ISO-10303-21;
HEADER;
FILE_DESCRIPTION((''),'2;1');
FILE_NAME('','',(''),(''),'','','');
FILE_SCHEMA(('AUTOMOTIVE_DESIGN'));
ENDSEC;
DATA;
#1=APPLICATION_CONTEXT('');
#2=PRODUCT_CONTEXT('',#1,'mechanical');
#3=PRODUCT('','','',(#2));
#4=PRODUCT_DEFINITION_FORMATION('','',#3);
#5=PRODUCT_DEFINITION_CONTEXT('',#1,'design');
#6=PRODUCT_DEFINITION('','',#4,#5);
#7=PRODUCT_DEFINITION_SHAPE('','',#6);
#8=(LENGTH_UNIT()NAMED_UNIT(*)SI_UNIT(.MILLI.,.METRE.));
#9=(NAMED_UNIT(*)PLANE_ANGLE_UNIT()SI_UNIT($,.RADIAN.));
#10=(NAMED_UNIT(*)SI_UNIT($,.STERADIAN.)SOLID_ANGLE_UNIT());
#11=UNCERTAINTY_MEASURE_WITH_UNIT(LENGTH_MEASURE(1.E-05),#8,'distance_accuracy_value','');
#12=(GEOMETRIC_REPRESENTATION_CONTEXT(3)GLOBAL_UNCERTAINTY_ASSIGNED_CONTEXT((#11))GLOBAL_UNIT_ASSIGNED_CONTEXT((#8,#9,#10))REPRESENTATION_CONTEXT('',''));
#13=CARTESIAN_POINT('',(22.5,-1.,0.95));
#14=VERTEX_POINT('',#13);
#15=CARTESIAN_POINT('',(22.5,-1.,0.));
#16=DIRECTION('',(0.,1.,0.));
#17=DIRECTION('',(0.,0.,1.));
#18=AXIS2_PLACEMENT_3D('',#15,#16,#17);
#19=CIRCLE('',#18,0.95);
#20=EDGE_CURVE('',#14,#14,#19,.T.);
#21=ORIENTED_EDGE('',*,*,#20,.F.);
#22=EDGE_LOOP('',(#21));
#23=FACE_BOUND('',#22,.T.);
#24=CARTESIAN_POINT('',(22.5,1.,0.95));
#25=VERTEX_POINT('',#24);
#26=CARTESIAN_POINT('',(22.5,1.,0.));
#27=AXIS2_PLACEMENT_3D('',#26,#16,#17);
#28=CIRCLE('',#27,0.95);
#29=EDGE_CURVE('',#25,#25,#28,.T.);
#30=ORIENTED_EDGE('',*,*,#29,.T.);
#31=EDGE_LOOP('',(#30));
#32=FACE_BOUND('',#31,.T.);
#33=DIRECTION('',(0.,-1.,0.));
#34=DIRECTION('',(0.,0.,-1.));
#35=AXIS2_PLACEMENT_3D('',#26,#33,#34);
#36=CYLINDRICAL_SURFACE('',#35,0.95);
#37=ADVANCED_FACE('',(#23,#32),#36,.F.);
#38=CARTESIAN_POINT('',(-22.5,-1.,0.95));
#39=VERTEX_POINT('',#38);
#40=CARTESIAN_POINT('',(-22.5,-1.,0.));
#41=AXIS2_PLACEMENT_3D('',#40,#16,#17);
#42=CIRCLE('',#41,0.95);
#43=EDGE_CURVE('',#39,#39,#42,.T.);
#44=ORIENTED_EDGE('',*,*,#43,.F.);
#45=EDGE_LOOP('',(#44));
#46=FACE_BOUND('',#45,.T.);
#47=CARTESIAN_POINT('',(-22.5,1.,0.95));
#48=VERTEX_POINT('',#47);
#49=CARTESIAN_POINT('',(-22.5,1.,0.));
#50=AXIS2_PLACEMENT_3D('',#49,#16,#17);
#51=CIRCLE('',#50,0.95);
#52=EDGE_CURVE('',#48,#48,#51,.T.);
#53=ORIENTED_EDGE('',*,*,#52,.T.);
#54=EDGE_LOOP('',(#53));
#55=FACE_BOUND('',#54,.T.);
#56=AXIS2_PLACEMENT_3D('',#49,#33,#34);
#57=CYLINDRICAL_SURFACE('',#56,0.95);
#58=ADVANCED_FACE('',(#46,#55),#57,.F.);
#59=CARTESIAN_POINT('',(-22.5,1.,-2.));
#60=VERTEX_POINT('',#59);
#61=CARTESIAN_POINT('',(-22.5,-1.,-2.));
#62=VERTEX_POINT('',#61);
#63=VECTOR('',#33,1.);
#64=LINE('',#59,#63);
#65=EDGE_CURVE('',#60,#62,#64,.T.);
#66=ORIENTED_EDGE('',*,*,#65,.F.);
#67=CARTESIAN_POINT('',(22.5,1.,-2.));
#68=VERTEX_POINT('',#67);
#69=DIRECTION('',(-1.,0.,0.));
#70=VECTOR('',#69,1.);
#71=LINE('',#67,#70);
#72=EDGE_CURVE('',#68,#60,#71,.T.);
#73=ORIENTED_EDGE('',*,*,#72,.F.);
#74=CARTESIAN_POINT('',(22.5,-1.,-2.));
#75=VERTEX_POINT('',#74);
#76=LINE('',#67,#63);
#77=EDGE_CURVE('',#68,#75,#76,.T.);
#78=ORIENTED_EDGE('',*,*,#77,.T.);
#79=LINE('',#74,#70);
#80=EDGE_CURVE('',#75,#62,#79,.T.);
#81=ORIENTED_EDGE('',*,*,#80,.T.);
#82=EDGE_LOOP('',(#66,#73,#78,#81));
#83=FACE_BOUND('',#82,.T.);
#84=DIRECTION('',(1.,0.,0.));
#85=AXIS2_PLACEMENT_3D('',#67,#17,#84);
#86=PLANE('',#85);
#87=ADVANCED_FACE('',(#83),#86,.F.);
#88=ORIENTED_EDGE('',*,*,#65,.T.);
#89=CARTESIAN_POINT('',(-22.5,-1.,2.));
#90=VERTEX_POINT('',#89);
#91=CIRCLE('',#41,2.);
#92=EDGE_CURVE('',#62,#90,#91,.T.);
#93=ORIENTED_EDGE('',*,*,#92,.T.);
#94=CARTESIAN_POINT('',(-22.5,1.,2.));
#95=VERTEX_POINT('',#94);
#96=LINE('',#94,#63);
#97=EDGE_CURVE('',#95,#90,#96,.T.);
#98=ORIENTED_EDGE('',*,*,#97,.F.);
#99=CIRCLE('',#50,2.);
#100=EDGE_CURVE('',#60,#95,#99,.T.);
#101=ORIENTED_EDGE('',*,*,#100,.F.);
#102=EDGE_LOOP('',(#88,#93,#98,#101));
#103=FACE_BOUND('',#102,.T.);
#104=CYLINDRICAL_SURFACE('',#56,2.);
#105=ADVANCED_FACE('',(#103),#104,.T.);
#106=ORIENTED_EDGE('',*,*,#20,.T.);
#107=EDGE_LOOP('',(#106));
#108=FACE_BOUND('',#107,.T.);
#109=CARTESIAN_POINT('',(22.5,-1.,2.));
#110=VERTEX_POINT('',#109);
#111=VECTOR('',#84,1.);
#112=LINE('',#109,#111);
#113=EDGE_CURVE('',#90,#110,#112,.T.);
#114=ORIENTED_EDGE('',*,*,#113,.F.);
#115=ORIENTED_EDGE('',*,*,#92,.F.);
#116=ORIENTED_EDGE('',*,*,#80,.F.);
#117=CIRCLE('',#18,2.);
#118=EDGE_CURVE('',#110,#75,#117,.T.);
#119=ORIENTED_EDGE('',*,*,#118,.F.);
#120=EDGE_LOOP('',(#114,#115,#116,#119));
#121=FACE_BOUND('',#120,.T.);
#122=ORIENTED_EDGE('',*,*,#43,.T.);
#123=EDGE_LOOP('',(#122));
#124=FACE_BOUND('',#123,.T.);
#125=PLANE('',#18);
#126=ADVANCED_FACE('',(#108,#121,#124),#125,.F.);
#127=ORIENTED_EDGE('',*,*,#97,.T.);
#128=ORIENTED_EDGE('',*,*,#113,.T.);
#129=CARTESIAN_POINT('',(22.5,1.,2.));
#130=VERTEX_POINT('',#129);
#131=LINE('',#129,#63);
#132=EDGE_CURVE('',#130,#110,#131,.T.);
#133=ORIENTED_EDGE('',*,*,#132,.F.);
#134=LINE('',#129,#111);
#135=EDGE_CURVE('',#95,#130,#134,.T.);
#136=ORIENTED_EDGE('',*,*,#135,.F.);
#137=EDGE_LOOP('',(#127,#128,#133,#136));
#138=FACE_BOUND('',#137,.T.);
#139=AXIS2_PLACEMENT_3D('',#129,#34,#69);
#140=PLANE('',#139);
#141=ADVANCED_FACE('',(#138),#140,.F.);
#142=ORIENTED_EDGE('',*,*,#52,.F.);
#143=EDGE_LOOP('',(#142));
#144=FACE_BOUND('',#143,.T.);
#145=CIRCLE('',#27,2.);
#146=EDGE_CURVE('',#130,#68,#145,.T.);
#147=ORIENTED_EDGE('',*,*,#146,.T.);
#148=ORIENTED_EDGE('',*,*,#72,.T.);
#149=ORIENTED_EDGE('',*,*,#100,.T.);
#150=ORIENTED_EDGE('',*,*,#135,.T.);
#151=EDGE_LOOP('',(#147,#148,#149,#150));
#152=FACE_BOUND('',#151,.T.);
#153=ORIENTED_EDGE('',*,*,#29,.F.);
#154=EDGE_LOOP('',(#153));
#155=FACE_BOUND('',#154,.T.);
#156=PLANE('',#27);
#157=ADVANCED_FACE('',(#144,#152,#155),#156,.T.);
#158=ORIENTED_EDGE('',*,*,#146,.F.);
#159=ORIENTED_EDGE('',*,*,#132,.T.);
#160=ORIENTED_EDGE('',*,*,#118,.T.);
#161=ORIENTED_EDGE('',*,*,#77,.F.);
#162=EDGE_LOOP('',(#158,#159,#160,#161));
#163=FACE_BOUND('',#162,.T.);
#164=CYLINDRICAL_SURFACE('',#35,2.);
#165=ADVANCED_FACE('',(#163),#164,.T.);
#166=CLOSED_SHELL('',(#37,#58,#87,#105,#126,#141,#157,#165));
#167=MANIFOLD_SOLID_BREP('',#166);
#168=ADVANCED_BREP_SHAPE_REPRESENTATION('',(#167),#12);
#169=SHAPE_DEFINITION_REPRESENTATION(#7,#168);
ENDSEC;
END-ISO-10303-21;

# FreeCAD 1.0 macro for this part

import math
import FreeCAD as App
import Part
import Sketcher
from FreeCAD import Vector
Q = App.Units.Quantity

doc = App.newDocument("Part")
body = doc.addObject("PartDesign::Body", "Body")

# Sketch on XZ plane
sketch1 = body.newObject("Sketcher::SketchObject", "Sketch")
sketch1.AttachmentSupport = (doc.getObject("XZ_Plane"), [""])
sketch1.MapMode = "FlatFace"
sketch1.addGeometry(Part.LineSegment(Vector(-22.5, 2, 0), Vector(22.5, 2, 0)), False)
sketch1.addGeometry(Part.ArcOfCircle(Part.Circle(Vector(22.5, 0, 0), Vector(0, 0, 1), 2), math.radians(-90), math.radians(90)), False)
sketch1.addGeometry(Part.LineSegment(Vector(22.5, -2, 0), Vector(-22.5, -2, 0)), False)
sketch1.addGeometry(Part.ArcOfCircle(Part.Circle(Vector(-22.5, 0, 0), Vector(0, 0, 1), 2), math.radians(90), math.radians(270)), False)
sketch1.addGeometry(Part.Circle(Vector(22.5, 0, 0), Vector(0, 0, 1), 0.9), False)
sketch1.addGeometry(Part.Circle(Vector(-22.5, 0, 0), Vector(0, 0, 1), 0.9), False)
sketch1.addConstraint(Sketcher.Constraint("Tangent", 0, 2, 1, 2))
sketch1.addConstraint(Sketcher.Constraint("Tangent", 1, 1, 2, 1))
sketch1.addConstraint(Sketcher.Constraint("Tangent", 2, 2, 3, 2))
sketch1.addConstraint(Sketcher.Constraint("Tangent", 3, 1, 0, 1))
sketch1.addConstraint(Sketcher.Constraint("Horizontal", 0))
sketch1.addConstraint(Sketcher.Constraint("Horizontal", 2))
sketch1.addConstraint(Sketcher.Constraint("Coincident", 4, 3, 1, 3))
sketch1.addConstraint(Sketcher.Constraint("Coincident", 5, 3, 3, 3))
sketch1.addConstraint(Sketcher.Constraint("Equal", 4, 5))
sketch1.addConstraint(Sketcher.Constraint("Symmetric", 1, 3, 3, 3, -1, 1))
sketch1.addConstraint(Sketcher.Constraint("Radius", 1, Q("2 mm")))
sketch1.addConstraint(Sketcher.Constraint("Diameter", 4, Q("1.9 mm")))
sketch1.addConstraint(Sketcher.Constraint("DistanceX", 0, 1, 0, 2, Q("45 mm")))
pad1 = body.newObject("PartDesign::Pad", "Pad")
pad1.Profile = sketch1
pad1.Length = 2
pad1.Midplane = True

doc.recompute()
